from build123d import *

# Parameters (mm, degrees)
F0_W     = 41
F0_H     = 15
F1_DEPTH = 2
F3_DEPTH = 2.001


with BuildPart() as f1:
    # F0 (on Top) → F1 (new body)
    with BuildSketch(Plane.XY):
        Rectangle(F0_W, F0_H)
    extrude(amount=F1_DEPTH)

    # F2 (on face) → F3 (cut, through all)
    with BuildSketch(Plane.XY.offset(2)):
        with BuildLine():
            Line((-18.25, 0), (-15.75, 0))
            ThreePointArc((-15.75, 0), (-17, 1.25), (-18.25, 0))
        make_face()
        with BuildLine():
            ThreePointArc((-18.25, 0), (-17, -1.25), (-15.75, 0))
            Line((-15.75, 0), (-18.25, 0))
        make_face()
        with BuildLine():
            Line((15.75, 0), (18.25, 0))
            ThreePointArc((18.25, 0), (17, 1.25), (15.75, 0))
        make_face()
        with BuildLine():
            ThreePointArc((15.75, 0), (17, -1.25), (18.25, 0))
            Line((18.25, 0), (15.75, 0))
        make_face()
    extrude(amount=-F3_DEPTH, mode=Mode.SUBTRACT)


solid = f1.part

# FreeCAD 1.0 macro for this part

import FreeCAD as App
import Part
import Sketcher
Q = App.Units.Quantity


def add_polygon(sketch, points):
    """Adds a closed chain of lines whose ends are joined by coincident constraints."""
    first, n = sketch.GeometryCount, len(points)
    for a, b in zip(points, points[1:] + points[:1]):
        sketch.addGeometry(Part.LineSegment(App.Vector(*a, 0), App.Vector(*b, 0)), False)
    for i in range(n):
        sketch.addConstraint(Sketcher.Constraint("Coincident", first + i, 2, first + (i + 1) % n, 1))

doc = App.newDocument("Part")
params = doc.addObject("Spreadsheet::Sheet", "Params")
for row, (alias, value) in enumerate([
    ("sketch1_width", "41 mm"),
    ("sketch1_height", "15 mm"),
    ("pad1_length", "2 mm"),
    ("sketch2_diameter", "2.5 mm"),
], start=1):
    params.set(f"A{row}", alias)
    params.set(f"B{row}", "=" + value)
    params.setAlias(f"B{row}", alias)

body = doc.addObject("PartDesign::Body", "Body")

sketch1 = body.newObject("Sketcher::SketchObject", "Sketch")
sketch1.AttachmentSupport = (doc.getObject("XY_Plane"), [""])
sketch1.MapMode = "FlatFace"
add_polygon(sketch1, [(-20, 8), (-20, -8), (20, -8), (20, 8)])
sketch1.addConstraint(Sketcher.Constraint("Vertical", 0))
sketch1.addConstraint(Sketcher.Constraint("Horizontal", 1))
sketch1.addConstraint(Sketcher.Constraint("Vertical", 2))
sketch1.addConstraint(Sketcher.Constraint("Horizontal", 3))
sketch1.addConstraint(Sketcher.Constraint("Symmetric", 0, 2, 2, 2, -1, 1))
sketch1.addConstraint(Sketcher.Constraint("DistanceX", 1, 1, 1, 2, Q("41 mm")))
sketch1.addConstraint(Sketcher.Constraint("DistanceY", 0, 2, 0, 1, Q("15 mm")))
sketch1.setExpression("Constraints[9]", "Params.sketch1_width")
sketch1.setExpression("Constraints[10]", "Params.sketch1_height")
pad1 = body.newObject("PartDesign::Pad", "Pad")
pad1.Profile = sketch1
pad1.setExpression("Length", "Params.pad1_length")

sketch2 = body.newObject("Sketcher::SketchObject", "Sketch001")
sketch2.AttachmentSupport = (doc.getObject("XY_Plane"), [""])
sketch2.MapMode = "FlatFace"
sketch2.AttachmentOffset = App.Placement(App.Vector(0, 0, 2), App.Rotation())
sketch2.addGeometry(Part.Circle(App.Vector(-17, 0, 0), App.Vector(0, 0, 1), 1.2), False)
sketch2.addGeometry(Part.Circle(App.Vector(17, 0, 0), App.Vector(0, 0, 1), 1.2), False)
sketch2.addConstraint(Sketcher.Constraint("Equal", 0, 1))
sketch2.addConstraint(Sketcher.Constraint("Symmetric", 0, 3, 1, 3, -1, 1))
sketch2.addConstraint(Sketcher.Constraint("PointOnObject", 0, 3, -1))
sketch2.addConstraint(Sketcher.Constraint("Diameter", 0, Q("2.5 mm")))
sketch2.addConstraint(Sketcher.Constraint("DistanceX", 0, 3, -1, 1, Q("17 mm")))
sketch2.setExpression("Constraints[3]", "Params.sketch2_diameter")
pocket1 = body.newObject("PartDesign::Pocket", "Pocket")
pocket1.Profile = sketch2
pocket1.Type = "ThroughAll"

doc.recompute()
